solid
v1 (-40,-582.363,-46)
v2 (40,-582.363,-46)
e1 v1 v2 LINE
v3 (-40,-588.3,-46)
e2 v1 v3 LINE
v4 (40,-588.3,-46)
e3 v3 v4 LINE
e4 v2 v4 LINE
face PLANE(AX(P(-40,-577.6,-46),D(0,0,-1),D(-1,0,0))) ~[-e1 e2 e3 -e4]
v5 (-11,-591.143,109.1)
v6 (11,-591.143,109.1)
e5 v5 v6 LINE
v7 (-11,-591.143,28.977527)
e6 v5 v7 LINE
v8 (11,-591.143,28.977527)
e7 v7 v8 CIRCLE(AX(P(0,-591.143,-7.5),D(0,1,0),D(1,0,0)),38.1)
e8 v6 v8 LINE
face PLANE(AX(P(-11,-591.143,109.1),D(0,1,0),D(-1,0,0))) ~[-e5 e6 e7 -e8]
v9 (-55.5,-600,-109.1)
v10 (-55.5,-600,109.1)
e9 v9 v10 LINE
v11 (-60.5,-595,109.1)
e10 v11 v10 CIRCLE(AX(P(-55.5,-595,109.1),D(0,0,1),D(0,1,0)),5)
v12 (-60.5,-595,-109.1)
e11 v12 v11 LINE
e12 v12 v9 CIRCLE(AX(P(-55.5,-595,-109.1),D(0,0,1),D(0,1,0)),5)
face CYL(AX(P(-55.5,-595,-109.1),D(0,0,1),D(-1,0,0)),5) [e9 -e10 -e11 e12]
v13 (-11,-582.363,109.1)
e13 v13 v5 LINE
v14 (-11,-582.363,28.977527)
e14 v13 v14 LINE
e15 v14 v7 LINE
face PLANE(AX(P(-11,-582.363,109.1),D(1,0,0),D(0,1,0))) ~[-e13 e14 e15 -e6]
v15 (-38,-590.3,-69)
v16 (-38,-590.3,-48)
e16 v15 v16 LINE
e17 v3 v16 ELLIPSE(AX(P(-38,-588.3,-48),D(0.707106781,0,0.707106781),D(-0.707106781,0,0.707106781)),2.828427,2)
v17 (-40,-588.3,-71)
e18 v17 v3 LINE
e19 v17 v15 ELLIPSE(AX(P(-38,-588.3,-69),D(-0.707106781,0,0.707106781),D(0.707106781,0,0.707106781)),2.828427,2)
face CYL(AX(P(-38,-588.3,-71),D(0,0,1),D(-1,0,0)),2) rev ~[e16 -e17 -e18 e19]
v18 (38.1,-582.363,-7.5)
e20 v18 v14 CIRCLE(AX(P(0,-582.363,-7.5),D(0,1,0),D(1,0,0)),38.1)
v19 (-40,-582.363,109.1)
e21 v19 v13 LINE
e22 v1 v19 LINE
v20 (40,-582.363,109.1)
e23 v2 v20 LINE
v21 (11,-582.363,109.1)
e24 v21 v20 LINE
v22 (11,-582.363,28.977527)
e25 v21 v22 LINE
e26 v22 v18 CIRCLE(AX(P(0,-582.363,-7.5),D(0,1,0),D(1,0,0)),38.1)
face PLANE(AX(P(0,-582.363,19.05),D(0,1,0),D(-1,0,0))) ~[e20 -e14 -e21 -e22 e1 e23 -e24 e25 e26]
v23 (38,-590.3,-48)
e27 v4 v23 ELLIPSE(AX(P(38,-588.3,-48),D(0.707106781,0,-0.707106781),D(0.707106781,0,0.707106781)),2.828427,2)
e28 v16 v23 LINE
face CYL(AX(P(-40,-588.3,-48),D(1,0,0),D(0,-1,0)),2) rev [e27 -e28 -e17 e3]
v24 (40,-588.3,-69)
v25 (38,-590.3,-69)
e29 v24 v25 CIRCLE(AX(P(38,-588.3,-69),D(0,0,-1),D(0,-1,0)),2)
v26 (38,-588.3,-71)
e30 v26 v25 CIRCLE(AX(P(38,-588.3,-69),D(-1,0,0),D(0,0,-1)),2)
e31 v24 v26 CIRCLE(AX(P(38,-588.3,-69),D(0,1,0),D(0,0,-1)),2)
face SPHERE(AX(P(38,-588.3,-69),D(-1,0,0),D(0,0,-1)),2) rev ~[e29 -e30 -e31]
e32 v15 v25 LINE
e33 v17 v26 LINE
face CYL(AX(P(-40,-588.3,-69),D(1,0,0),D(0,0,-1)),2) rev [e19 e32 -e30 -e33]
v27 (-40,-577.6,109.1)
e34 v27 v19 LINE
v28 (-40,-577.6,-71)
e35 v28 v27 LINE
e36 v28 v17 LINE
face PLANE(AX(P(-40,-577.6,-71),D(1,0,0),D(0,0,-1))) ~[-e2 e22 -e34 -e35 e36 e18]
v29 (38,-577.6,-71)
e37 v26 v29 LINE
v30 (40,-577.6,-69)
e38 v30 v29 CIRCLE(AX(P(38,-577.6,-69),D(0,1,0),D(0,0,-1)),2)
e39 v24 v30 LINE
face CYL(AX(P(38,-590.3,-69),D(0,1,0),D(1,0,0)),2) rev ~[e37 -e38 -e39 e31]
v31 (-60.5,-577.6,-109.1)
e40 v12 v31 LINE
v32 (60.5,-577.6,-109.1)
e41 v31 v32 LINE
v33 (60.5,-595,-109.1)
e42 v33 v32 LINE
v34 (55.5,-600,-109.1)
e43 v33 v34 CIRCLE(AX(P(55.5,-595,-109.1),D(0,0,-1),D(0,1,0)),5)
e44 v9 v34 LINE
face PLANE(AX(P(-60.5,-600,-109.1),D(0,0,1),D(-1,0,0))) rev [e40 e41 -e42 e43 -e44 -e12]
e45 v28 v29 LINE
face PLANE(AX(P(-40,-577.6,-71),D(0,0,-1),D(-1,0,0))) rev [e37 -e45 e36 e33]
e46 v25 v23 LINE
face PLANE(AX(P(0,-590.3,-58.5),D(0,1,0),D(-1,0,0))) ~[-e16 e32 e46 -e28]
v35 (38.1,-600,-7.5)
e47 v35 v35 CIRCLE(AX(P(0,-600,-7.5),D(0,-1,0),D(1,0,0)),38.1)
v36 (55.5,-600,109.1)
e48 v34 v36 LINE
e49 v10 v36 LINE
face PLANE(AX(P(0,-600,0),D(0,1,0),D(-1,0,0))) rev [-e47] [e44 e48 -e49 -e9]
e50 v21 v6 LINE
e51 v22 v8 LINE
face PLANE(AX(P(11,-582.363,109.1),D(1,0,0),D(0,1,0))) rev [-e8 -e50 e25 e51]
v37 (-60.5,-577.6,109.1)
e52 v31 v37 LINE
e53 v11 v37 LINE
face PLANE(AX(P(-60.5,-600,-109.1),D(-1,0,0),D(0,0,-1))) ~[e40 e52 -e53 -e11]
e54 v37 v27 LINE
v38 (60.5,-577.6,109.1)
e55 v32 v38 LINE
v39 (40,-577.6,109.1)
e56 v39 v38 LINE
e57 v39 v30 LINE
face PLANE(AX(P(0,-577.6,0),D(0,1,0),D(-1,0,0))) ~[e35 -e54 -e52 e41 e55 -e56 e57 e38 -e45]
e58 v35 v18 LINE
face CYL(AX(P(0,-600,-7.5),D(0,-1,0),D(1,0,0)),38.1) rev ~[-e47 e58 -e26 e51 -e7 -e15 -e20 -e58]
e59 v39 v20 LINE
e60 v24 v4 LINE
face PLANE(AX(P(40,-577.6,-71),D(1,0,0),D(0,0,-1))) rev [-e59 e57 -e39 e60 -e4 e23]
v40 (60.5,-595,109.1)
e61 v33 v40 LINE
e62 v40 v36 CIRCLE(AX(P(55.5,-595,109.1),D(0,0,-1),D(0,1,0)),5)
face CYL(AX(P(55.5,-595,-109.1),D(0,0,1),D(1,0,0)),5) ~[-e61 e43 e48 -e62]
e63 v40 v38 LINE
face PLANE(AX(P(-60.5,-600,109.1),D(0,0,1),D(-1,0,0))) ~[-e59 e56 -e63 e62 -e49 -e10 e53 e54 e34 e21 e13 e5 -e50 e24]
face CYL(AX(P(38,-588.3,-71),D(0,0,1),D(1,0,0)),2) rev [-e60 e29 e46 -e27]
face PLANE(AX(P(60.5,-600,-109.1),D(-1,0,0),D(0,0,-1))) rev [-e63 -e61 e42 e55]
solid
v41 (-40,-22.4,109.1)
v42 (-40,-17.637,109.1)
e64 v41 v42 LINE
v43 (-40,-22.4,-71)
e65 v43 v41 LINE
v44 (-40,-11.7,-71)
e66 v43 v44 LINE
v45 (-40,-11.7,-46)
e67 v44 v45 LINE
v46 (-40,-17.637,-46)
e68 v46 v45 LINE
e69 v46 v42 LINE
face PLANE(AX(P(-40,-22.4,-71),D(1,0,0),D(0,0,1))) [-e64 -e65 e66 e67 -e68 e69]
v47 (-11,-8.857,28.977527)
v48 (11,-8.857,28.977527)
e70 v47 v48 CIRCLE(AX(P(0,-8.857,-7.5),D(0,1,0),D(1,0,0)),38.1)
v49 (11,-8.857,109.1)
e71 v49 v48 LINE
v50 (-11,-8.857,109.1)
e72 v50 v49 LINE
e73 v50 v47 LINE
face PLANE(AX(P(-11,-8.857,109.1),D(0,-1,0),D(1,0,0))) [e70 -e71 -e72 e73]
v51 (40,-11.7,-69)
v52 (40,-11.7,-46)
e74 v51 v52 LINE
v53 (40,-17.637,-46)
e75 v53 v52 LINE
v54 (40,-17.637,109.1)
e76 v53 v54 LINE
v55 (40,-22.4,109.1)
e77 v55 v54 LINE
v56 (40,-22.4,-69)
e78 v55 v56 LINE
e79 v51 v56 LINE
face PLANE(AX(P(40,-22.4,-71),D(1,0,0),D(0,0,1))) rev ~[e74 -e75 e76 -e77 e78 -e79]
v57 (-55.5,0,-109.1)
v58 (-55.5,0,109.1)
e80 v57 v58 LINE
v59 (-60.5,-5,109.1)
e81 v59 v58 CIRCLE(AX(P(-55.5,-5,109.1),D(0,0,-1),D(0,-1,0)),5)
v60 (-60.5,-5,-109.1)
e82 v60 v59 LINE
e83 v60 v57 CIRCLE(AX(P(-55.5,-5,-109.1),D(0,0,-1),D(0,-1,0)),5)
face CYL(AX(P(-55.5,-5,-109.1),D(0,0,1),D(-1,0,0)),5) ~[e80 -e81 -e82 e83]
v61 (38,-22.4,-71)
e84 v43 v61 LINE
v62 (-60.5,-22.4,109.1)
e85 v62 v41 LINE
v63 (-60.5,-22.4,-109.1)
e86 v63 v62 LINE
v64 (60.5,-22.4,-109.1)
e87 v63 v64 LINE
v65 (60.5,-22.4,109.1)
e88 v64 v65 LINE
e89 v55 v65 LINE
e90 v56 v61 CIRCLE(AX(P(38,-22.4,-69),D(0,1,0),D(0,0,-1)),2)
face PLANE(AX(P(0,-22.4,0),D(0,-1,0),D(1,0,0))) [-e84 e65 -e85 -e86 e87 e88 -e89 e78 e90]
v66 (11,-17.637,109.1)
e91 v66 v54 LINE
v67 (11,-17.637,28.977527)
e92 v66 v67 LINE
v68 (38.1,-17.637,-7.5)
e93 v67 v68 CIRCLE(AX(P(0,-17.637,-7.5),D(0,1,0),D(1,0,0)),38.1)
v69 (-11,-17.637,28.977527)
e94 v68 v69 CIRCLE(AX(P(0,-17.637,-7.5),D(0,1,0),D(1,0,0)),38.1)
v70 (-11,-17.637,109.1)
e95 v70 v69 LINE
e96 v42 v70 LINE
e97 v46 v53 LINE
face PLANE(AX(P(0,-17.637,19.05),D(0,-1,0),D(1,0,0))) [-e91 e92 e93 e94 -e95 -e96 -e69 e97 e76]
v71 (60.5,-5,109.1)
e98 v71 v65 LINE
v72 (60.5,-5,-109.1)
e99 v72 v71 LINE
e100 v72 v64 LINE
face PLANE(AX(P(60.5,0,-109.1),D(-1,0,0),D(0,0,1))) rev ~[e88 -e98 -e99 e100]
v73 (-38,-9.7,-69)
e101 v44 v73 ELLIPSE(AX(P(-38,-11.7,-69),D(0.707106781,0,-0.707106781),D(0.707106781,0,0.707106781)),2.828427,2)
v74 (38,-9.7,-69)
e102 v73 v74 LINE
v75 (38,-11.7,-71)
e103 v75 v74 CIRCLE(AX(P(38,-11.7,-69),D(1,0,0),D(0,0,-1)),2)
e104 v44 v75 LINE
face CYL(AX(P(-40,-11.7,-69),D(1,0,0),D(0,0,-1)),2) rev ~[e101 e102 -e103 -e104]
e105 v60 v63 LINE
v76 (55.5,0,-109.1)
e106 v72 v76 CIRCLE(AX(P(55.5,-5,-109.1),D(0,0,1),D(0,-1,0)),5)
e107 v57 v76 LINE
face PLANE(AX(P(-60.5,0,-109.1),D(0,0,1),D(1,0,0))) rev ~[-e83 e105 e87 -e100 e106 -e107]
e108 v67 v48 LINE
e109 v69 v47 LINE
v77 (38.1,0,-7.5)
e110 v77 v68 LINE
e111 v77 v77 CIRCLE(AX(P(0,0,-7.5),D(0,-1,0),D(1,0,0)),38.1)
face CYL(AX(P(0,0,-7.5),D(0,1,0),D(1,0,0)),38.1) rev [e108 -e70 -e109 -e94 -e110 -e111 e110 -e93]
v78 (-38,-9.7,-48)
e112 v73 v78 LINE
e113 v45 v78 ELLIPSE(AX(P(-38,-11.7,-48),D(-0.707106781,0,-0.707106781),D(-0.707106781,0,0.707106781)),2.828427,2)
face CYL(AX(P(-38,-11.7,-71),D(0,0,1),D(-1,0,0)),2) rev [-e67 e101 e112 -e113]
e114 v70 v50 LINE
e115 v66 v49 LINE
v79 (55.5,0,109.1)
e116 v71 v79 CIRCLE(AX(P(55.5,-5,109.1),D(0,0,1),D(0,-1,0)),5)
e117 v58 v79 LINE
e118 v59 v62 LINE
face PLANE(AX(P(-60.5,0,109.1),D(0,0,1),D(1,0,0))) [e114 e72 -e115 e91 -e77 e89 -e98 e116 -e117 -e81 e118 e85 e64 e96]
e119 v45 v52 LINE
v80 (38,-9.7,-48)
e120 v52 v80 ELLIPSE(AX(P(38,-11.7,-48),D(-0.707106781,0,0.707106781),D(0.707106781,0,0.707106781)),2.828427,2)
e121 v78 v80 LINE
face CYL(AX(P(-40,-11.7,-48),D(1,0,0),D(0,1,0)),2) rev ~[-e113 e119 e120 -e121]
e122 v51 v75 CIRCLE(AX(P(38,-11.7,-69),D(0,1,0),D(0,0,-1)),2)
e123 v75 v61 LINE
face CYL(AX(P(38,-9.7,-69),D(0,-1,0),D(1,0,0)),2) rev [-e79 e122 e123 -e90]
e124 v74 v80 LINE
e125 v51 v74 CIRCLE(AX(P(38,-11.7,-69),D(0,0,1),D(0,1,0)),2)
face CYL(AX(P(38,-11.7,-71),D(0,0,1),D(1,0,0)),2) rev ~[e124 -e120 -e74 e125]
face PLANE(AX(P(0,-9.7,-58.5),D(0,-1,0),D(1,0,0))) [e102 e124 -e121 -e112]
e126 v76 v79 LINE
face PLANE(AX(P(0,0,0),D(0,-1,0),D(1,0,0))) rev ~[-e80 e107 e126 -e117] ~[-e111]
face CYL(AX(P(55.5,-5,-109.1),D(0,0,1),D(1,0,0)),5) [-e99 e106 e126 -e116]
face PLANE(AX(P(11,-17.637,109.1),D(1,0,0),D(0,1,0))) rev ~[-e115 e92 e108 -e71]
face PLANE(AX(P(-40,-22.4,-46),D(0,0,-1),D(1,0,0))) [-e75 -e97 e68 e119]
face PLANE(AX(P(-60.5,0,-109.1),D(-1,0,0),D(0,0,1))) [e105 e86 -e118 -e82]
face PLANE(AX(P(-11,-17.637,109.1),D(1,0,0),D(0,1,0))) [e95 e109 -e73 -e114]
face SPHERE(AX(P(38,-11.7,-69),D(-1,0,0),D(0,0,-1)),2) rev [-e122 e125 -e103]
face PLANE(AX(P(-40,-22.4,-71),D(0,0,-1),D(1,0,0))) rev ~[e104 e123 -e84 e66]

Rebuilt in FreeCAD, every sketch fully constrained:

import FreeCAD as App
import Part
import Sketcher

V = App.Vector
Q = App.Units.Quantity


def edges_at(feature, points):
    """Names of the edges that pass closest to the given points."""
    edges = feature.Shape.Edges
    near = lambda p: min(range(len(edges)), key=lambda i: edges[i].distToShape(Part.Vertex(*p))[0])
    return sorted({f"Edge{near(p) + 1}" for p in points})

doc = App.newDocument("Part")
body = doc.addObject("PartDesign::Body", "Body")

# Sketch on XZ plane
sketch1 = body.newObject("Sketcher::SketchObject", "Sketch")
sketch1.AttachmentSupport = (doc.getObject("XZ_Plane"), [""])
sketch1.MapMode = "FlatFace"
sketch1.addGeometry([
    Part.LineSegment(V(-60.5, 109.1, 0), V(-60.5, -109.1, 0)),  # 0
    Part.LineSegment(V(-60.5, -109.1, 0), V(60.5, -109.1, 0)),  # 1
    Part.LineSegment(V(60.5, -109.1, 0), V(60.5, 109.1, 0)),  # 2
    Part.LineSegment(V(60.5, 109.1, 0), V(-60.5, 109.1, 0)),  # 3
    Part.Circle(V(0, -7.5, 0), V(0, 0, 1), 38.1),  # 4
], False)
sketch1.addConstraint([
    Sketcher.Constraint("Coincident", 0, 2, 1, 1),
    Sketcher.Constraint("Coincident", 1, 2, 2, 1),
    Sketcher.Constraint("Coincident", 2, 2, 3, 1),
    Sketcher.Constraint("Coincident", 3, 2, 0, 1),
    Sketcher.Constraint("Vertical", 0),
    Sketcher.Constraint("Horizontal", 1),
    Sketcher.Constraint("Vertical", 2),
    Sketcher.Constraint("Horizontal", 3),
    Sketcher.Constraint("Symmetric", 0, 2, 2, 2, -1, 1),
    Sketcher.Constraint("PointOnObject", 4, 3, -2),
    Sketcher.Constraint("Diameter", 4, Q("76.2 mm")),
    Sketcher.Constraint("DistanceX", 1, 1, 1, 2, Q("121 mm")),
    Sketcher.Constraint("DistanceY", 0, 2, 0, 1, Q("218.2 mm")),
    Sketcher.Constraint("DistanceY", 4, 3, -1, 1, Q("7.5 mm")),
])
pad1 = body.newObject("PartDesign::Pad", "Pad")
pad1.Profile = sketch1
pad1.Length = 22.4

# Sketch on XZ plane
sketch2 = body.newObject("Sketcher::SketchObject", "Sketch001")
sketch2.AttachmentSupport = (doc.getObject("XZ_Plane"), [""])
sketch2.MapMode = "FlatFace"
sketch2.AttachmentOffset = App.Placement(V(0, 0, 22.4), App.Rotation())
sketch2.addGeometry([
    Part.LineSegment(V(-40, 109.1, 0), V(-40, -71, 0)),
    Part.LineSegment(V(-40, -71, 0), V(40, -71, 0)),
    Part.LineSegment(V(40, -71, 0), V(40, 109.1, 0)),
    Part.LineSegment(V(40, 109.1, 0), V(-40, 109.1, 0)),
], False)
sketch2.addConstraint([
    Sketcher.Constraint("Coincident", 0, 2, 1, 1),
    Sketcher.Constraint("Coincident", 1, 2, 2, 1),
    Sketcher.Constraint("Coincident", 2, 2, 3, 1),
    Sketcher.Constraint("Coincident", 3, 2, 0, 1),
    Sketcher.Constraint("Vertical", 0),
    Sketcher.Constraint("Horizontal", 1),
    Sketcher.Constraint("Vertical", 2),
    Sketcher.Constraint("Horizontal", 3),
    Sketcher.Constraint("DistanceX", 1, 1, 1, 2, Q("80 mm")),
    Sketcher.Constraint("DistanceY", 0, 2, 0, 1, Q("180.1 mm")),
    Sketcher.Constraint("DistanceX", 0, 2, -1, 1, Q("40 mm")),
    Sketcher.Constraint("DistanceY", 0, 2, -1, 1, Q("71 mm")),
])
pocket1 = body.newObject("PartDesign::Pocket", "Pocket")
pocket1.Profile = sketch2
pocket1.Length = 4.763

# Sketch on XZ plane
sketch3 = body.newObject("Sketcher::SketchObject", "Sketch002")
sketch3.AttachmentSupport = (doc.getObject("XZ_Plane"), [""])
sketch3.MapMode = "FlatFace"
sketch3.AttachmentOffset = App.Placement(V(0, 0, 22.4), App.Rotation())
sketch3.addGeometry([
    Part.LineSegment(V(-40, -46, 0), V(-40, -71, 0)),
    Part.LineSegment(V(-40, -71, 0), V(40, -71, 0)),
    Part.LineSegment(V(40, -71, 0), V(40, -46, 0)),
    Part.LineSegment(V(40, -46, 0), V(-40, -46, 0)),
], False)
sketch3.addConstraint([
    Sketcher.Constraint("Coincident", 0, 2, 1, 1),
    Sketcher.Constraint("Coincident", 1, 2, 2, 1),
    Sketcher.Constraint("Coincident", 2, 2, 3, 1),
    Sketcher.Constraint("Coincident", 3, 2, 0, 1),
    Sketcher.Constraint("Vertical", 0),
    Sketcher.Constraint("Horizontal", 1),
    Sketcher.Constraint("Vertical", 2),
    Sketcher.Constraint("Horizontal", 3),
    Sketcher.Constraint("DistanceX", 1, 1, 1, 2, Q("80 mm")),
    Sketcher.Constraint("DistanceY", 0, 2, 0, 1, Q("25 mm")),
    Sketcher.Constraint("DistanceX", 0, 2, -1, 1, Q("40 mm")),
    Sketcher.Constraint("DistanceY", 0, 2, -1, 1, Q("71 mm")),
])
pocket2 = body.newObject("PartDesign::Pocket", "Pocket001")
pocket2.Profile = sketch3
pocket2.Length = 12.7
doc.recompute()

fillet = body.newObject("PartDesign::Fillet", "Fillet")
fillet.Base = (pocket2, edges_at(pocket2, [(-60.5, 0, 0), (60.5, 0, 0)]))
fillet.Radius = 5
doc.recompute()

fillet2 = body.newObject("PartDesign::Fillet", "Fillet001")
fillet2.Base = (fillet, edges_at(fillet, [
    (0, -9.7, -71),
    (40, -16.05, -71),
    (40, -9.7, -58.5),
    (-40, -9.7, -58.5),
    (0, -9.7, -46),
]))
fillet2.Radius = 2

# Sketch on XY plane
sketch4 = body.newObject("Sketcher::SketchObject", "Sketch003")
sketch4.AttachmentSupport = (doc.getObject("XY_Plane"), [""])
sketch4.MapMode = "FlatFace"
sketch4.AttachmentOffset = App.Placement(V(0, 0, 109.1), App.Rotation())
sketch4.addGeometry([
    Part.LineSegment(V(-11, -8.857, 0), V(-11, -17.637, 0)),
    Part.LineSegment(V(-11, -17.637, 0), V(11, -17.637, 0)),
    Part.LineSegment(V(11, -17.637, 0), V(11, -8.857, 0)),
    Part.LineSegment(V(11, -8.857, 0), V(-11, -8.857, 0)),
], False)
sketch4.addConstraint([
    Sketcher.Constraint("Coincident", 0, 2, 1, 1),
    Sketcher.Constraint("Coincident", 1, 2, 2, 1),
    Sketcher.Constraint("Coincident", 2, 2, 3, 1),
    Sketcher.Constraint("Coincident", 3, 2, 0, 1),
    Sketcher.Constraint("Vertical", 0),
    Sketcher.Constraint("Horizontal", 1),
    Sketcher.Constraint("Vertical", 2),
    Sketcher.Constraint("Horizontal", 3),
    Sketcher.Constraint("DistanceX", 1, 1, 1, 2, Q("22 mm")),
    Sketcher.Constraint("DistanceX", 0, 2, -1, 1, Q("11 mm")),
    Sketcher.Constraint("DistanceY", 0, 2, 0, 1, Q("8.78 mm")),
    Sketcher.Constraint("DistanceY", 0, 2, -1, 1, Q("17.637 mm")),
])
pocket3 = body.newObject("PartDesign::Pocket", "Pocket002")
pocket3.Profile = sketch4
pocket3.Length = 100
body2 = doc.addObject("PartDesign::Body", "Body001")
doc.recompute()

mirroring = doc.addObject("Part::Mirroring", "Mirroring")
mirroring.Source = body
mirroring.Base = V(0, -300, 0)
mirroring.Normal = V(0, -1, 0)
body2.BaseFeature = mirroring
doc.recompute()
body3 = doc.addObject("PartDesign::Body", "Body002")
doc.recompute()

mirroring2 = doc.addObject("Part::Mirroring", "Mirroring001")
mirroring2.Source = body
mirroring2.Base = V(0, -300, 0)
mirroring2.Normal = V(0, -1, 0)
body3.BaseFeature = mirroring2
doc.recompute()
body2.Visibility = False
mirroring.Visibility = False
mirroring2.Visibility = False

doc.recompute()
